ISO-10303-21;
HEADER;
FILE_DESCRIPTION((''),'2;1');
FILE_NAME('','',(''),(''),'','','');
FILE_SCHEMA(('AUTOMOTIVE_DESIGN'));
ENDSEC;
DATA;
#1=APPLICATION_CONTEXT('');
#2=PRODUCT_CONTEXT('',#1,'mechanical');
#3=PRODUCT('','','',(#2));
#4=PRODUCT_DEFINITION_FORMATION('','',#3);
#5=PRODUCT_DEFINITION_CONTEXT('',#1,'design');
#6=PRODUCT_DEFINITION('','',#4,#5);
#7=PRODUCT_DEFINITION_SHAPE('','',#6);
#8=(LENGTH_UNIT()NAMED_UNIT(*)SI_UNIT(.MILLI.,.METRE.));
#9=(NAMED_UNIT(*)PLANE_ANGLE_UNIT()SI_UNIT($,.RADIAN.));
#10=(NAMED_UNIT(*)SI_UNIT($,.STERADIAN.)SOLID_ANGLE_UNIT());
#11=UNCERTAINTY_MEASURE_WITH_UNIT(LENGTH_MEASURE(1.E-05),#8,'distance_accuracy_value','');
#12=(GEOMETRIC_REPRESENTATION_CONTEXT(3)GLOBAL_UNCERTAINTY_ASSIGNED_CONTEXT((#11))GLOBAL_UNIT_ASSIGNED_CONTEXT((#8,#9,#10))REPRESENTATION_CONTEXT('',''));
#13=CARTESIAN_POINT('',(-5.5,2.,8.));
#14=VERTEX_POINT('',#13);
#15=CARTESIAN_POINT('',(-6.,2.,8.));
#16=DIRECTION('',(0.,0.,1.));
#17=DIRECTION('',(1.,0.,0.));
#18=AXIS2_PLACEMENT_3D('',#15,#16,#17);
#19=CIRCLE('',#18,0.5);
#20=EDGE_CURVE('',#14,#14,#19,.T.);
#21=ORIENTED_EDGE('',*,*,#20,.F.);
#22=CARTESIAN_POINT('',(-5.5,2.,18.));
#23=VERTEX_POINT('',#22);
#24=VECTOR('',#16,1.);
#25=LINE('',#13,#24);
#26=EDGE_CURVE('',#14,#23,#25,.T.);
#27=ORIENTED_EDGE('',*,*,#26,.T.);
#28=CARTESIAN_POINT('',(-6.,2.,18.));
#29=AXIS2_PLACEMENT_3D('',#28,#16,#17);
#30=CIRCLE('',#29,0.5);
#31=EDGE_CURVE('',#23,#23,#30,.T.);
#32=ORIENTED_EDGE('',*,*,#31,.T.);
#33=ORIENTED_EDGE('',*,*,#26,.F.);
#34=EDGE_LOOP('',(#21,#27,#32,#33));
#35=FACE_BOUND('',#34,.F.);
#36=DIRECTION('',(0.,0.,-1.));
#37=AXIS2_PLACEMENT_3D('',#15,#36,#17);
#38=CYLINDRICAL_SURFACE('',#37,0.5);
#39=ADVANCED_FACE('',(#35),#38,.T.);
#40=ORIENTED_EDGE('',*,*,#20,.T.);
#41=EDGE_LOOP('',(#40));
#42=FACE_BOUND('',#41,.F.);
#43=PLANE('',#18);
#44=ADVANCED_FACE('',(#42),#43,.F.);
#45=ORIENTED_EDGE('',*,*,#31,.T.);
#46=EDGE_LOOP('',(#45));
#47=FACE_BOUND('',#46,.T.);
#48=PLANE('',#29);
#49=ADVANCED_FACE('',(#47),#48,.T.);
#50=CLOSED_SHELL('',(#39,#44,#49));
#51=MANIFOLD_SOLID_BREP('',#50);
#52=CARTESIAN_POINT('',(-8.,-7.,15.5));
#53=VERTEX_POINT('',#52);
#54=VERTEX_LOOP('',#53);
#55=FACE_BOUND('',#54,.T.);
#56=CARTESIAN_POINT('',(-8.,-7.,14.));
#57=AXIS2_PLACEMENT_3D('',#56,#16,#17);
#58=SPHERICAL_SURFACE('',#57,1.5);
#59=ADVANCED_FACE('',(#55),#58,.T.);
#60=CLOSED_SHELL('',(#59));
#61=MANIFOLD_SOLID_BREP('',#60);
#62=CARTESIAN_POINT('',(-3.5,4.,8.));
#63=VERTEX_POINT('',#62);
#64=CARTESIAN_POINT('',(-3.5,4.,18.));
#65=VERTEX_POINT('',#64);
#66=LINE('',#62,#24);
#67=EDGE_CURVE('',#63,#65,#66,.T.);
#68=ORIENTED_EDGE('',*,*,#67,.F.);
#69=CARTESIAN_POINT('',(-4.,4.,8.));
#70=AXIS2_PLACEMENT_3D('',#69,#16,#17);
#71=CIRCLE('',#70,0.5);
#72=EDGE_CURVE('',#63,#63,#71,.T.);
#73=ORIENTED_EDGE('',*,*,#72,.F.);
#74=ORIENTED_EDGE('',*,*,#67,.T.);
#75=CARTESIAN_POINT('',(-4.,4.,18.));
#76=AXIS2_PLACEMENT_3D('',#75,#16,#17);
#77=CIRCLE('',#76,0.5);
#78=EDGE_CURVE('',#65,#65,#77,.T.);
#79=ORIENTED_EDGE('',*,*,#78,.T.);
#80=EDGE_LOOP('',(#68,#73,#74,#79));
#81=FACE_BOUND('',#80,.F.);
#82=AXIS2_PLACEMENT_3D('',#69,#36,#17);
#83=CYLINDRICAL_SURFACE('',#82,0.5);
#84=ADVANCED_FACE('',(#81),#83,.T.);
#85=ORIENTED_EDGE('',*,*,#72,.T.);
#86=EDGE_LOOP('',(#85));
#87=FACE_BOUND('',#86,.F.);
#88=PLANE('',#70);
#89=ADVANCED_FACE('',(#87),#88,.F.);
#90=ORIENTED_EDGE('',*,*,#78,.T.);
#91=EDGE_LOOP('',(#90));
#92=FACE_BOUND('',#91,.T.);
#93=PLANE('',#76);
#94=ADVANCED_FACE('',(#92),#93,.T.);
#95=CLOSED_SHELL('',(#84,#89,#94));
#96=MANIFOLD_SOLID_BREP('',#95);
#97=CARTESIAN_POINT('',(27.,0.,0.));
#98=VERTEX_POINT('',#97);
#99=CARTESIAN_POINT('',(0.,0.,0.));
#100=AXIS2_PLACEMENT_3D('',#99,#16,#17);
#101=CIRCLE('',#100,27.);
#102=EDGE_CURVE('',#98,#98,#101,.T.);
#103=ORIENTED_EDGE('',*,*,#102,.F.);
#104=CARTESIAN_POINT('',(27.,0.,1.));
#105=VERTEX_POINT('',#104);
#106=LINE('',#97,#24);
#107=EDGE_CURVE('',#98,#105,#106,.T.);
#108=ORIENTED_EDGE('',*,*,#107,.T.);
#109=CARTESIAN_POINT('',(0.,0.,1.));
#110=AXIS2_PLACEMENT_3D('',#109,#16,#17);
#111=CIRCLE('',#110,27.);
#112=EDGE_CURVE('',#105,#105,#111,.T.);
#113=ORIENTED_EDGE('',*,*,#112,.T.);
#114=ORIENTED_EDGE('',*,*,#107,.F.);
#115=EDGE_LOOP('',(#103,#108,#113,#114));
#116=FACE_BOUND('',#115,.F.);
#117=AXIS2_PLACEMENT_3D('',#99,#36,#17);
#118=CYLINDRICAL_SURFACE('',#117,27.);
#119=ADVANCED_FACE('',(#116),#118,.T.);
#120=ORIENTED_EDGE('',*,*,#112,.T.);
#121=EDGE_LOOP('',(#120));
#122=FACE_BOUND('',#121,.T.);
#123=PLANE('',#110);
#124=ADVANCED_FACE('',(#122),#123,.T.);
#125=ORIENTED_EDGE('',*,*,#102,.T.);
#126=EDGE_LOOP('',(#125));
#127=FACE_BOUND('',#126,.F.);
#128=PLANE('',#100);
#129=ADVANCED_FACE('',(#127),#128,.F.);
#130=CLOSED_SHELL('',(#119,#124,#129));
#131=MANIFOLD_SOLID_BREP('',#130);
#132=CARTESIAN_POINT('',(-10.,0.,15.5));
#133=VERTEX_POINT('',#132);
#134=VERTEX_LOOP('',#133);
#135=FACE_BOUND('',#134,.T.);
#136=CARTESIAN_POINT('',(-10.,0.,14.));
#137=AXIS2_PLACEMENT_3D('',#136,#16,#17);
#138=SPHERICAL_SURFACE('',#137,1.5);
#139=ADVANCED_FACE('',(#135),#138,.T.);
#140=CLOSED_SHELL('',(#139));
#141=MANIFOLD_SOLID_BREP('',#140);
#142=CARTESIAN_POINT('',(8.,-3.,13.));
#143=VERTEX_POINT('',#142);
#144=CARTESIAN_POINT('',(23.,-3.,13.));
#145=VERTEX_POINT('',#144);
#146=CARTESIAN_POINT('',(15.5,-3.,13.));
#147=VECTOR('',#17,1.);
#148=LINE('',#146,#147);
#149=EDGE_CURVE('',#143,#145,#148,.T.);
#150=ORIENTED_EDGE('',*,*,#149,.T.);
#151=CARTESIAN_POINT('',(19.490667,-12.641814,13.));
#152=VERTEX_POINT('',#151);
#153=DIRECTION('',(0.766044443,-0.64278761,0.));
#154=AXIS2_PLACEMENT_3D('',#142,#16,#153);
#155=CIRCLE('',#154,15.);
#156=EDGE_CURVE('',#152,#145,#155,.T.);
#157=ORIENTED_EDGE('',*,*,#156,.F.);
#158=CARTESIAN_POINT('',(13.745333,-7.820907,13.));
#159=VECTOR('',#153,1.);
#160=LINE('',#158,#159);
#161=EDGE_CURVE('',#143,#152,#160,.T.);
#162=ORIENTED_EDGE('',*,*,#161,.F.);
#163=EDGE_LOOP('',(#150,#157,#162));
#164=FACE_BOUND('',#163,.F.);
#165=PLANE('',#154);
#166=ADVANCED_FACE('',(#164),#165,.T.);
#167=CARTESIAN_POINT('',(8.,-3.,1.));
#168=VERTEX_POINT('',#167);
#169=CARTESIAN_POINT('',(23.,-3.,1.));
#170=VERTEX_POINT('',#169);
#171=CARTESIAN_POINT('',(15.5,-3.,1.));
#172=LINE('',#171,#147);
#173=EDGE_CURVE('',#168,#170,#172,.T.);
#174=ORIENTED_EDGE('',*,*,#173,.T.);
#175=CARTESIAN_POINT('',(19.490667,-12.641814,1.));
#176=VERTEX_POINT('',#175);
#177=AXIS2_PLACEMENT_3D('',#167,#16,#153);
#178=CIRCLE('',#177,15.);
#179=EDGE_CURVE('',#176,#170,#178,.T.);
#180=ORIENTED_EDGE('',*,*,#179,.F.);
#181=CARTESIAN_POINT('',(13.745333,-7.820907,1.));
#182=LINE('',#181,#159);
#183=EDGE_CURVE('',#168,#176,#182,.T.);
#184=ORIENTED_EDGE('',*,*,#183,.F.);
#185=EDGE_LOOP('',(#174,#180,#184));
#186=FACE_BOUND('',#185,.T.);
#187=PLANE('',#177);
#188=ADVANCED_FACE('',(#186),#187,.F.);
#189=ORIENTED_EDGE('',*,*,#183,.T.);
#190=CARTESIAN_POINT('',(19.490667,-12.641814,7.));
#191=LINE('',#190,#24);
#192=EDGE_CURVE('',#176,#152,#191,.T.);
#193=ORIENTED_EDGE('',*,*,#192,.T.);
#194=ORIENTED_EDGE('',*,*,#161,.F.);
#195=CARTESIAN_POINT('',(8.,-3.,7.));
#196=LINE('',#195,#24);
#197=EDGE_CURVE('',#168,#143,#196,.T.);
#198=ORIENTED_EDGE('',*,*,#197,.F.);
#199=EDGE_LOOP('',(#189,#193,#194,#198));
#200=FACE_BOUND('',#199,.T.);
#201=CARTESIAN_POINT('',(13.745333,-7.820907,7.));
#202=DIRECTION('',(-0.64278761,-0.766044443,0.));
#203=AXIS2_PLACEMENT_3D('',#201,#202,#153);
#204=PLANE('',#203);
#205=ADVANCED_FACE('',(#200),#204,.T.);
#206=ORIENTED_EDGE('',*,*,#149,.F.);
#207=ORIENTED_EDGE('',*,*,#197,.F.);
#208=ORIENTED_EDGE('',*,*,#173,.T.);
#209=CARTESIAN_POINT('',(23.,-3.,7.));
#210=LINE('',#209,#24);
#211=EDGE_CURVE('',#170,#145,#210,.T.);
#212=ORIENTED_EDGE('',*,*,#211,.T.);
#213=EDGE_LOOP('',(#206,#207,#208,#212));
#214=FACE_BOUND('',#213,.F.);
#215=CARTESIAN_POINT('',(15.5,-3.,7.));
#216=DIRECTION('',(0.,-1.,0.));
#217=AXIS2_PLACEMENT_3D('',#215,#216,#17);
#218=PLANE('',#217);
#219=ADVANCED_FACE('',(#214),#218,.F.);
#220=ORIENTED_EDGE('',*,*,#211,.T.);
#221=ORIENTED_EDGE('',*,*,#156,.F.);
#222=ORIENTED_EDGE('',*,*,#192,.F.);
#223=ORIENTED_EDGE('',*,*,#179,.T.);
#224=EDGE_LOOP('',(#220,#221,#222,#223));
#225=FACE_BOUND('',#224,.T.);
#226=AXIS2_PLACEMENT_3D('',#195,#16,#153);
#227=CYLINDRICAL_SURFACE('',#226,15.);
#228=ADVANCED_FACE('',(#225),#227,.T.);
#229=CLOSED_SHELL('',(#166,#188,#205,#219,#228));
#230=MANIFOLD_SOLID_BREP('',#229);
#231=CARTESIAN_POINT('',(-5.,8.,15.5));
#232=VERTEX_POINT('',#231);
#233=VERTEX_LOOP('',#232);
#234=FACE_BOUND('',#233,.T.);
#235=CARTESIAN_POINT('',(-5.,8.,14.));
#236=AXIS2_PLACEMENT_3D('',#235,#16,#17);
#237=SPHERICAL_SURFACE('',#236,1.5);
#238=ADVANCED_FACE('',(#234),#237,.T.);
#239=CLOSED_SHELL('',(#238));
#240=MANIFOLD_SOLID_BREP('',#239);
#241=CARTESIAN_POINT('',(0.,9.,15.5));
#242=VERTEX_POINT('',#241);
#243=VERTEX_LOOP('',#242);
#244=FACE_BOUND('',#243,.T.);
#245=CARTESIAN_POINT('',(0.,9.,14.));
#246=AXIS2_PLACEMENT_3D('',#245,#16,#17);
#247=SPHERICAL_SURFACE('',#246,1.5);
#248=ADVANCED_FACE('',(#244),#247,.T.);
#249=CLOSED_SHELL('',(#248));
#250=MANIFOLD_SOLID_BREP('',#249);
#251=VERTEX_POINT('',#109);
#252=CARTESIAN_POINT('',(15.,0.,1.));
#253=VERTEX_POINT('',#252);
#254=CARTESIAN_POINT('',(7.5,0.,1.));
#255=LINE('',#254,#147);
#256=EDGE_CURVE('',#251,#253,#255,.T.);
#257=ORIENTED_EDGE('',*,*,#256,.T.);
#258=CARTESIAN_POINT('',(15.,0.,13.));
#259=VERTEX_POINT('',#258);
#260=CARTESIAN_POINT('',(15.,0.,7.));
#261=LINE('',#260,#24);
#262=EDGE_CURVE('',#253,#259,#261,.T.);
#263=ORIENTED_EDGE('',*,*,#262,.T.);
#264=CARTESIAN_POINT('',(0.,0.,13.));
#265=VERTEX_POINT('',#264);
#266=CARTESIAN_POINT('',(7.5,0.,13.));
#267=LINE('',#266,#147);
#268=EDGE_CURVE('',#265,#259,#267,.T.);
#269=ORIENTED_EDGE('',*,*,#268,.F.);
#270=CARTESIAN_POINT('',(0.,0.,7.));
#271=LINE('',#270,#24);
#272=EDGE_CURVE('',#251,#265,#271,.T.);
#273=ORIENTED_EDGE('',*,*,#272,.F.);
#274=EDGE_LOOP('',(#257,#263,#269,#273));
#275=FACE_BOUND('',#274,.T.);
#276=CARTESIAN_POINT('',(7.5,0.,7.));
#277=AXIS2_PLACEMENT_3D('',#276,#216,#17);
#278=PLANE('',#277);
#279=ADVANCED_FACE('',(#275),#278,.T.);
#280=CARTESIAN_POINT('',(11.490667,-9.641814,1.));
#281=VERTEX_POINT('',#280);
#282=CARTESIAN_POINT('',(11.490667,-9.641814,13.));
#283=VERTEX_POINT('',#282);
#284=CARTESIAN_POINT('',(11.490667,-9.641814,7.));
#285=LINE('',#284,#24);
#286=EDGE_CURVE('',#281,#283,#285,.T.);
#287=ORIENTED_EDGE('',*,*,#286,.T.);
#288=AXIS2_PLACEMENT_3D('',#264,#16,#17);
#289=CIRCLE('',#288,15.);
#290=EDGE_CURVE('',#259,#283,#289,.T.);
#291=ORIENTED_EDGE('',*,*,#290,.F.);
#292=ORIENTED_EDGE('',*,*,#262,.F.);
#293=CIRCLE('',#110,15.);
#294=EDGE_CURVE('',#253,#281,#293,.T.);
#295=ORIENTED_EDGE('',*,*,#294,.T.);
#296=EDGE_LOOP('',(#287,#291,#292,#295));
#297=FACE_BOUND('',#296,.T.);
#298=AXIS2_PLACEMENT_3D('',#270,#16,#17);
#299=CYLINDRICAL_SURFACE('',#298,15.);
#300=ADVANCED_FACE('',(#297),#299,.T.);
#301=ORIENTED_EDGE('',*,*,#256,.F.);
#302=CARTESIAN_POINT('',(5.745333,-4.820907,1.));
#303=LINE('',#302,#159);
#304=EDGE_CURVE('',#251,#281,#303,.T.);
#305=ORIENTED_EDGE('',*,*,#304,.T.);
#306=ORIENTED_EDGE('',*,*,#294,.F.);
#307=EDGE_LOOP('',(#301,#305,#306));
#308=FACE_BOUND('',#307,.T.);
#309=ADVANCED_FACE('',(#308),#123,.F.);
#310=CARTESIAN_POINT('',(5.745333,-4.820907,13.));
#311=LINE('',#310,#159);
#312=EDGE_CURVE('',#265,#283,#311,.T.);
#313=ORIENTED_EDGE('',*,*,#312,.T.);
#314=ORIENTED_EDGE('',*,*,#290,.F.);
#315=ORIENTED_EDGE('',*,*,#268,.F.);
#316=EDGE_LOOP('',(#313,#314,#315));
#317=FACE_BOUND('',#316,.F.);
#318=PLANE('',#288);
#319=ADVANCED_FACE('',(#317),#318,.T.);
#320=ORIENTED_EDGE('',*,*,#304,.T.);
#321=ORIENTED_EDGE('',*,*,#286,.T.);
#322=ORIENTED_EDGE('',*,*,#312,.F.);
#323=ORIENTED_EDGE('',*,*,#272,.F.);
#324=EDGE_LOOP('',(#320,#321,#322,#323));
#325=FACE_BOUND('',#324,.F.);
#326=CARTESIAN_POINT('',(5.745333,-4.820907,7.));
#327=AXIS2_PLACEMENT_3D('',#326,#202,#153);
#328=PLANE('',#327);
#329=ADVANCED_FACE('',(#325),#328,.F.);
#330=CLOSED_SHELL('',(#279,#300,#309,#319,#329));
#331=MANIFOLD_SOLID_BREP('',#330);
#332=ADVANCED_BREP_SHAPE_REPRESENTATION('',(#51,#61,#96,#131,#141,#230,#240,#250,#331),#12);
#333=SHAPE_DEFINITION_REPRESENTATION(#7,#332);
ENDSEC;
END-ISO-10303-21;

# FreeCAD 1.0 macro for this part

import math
import FreeCAD as App
import Part
import Sketcher
from FreeCAD import Vector
Q = App.Units.Quantity


def add_polygon(sketch, points):
    """Adds a closed chain of lines whose ends are joined by coincident constraints."""
    first, n = sketch.GeometryCount, len(points)
    for a, b in zip(points, points[1:] + points[:1]):
        sketch.addGeometry(Part.LineSegment(App.Vector(*a, 0), App.Vector(*b, 0)), False)
    for i in range(n):
        sketch.addConstraint(Sketcher.Constraint("Coincident", first + i, 2, first + (i + 1) % n, 1))

doc = App.newDocument("Part")
body = doc.addObject("PartDesign::Body", "Body")

# Sketch on XZ plane
sketch1 = body.newObject("Sketcher::SketchObject", "Sketch")
sketch1.AttachmentSupport = (doc.getObject("XZ_Plane"), [""])
sketch1.MapMode = "FlatFace"
add_polygon(sketch1, [(0, 13), (0, 1), (15, 1), (15, 13)])  # lines 0-3
sketch1.addConstraint([
    Sketcher.Constraint("Vertical", 0),
    Sketcher.Constraint("Horizontal", 1),
    Sketcher.Constraint("Vertical", 2),
    Sketcher.Constraint("Horizontal", 3),
    Sketcher.Constraint("PointOnObject", 0, 2, -2),
    Sketcher.Constraint("DistanceX", 1, 1, 1, 2, Q("15 mm")),
    Sketcher.Constraint("DistanceY", 0, 2, 0, 1, Q("12 mm")),
    Sketcher.Constraint("DistanceY", -1, 1, 0, 2, Q("1 mm")),
])
revolution = body.newObject("PartDesign::Revolution", "Revolution")
revolution.Profile = sketch1
revolution.ReferenceAxis = (sketch1, ["V_Axis"])
revolution.Angle = 320
body2 = doc.addObject("PartDesign::Body", "Body001")

# Sketch on XZ plane
sketch2 = body2.newObject("Sketcher::SketchObject", "Sketch001")
sketch2.AttachmentSupport = (doc.getObject("XZ_Plane001"), [""])
sketch2.MapMode = "FlatFace"
add_polygon(sketch2, [(0, 12), (0, 0), (15, 0), (15, 12)])  # lines 0-3
sketch2.addConstraint([
    Sketcher.Constraint("Vertical", 0),
    Sketcher.Constraint("Horizontal", 1),
    Sketcher.Constraint("Vertical", 2),
    Sketcher.Constraint("Horizontal", 3),
    Sketcher.Constraint("Coincident", 0, 2, -1, 1),
    Sketcher.Constraint("DistanceX", 1, 1, 1, 2, Q("15 mm")),
    Sketcher.Constraint("DistanceY", 0, 2, 0, 1, Q("12 mm")),
])
revolution2 = body2.newObject("PartDesign::Revolution", "Revolution001")
revolution2.Profile = sketch2
revolution2.ReferenceAxis = (sketch2, ["V_Axis"])
revolution2.Angle = 40
body3 = doc.addObject("PartDesign::Body", "Body002")
doc.recompute()

body2.Placement = App.Placement(Vector(8, -3, 1), App.Rotation(Vector(0, 0, 1), 320))
boolean = body3.newObject("PartDesign::Boolean", "Boolean")
boolean.Type = "Fuse"
boolean.addObjects([body2])
body4 = doc.addObject("PartDesign::Body", "Body003")

# Sketch on XY plane
sketch3 = body4.newObject("Sketcher::SketchObject", "Sketch002")
sketch3.AttachmentSupport = (doc.getObject("XY_Plane003"), [""])
sketch3.MapMode = "FlatFace"
sketch3.addGeometry(Part.Circle(Vector(0, 0, 0), Vector(0, 0, 1), 27), False)
sketch3.addConstraint([
    Sketcher.Constraint("Coincident", 0, 3, -1, 1),
    Sketcher.Constraint("Diameter", 0, Q("54 mm")),
])
pad1 = body4.newObject("PartDesign::Pad", "Pad")
pad1.Profile = sketch3
pad1.Length = 1
body5 = doc.addObject("PartDesign::Body", "Body004")

# Sketch on XZ plane
sketch4 = body5.newObject("Sketcher::SketchObject", "Sketch003")
sketch4.AttachmentSupport = (doc.getObject("XZ_Plane004"), [""])
sketch4.MapMode = "FlatFace"
sketch4.addGeometry([
    Part.ArcOfCircle(Part.Circle(Vector(-10, 14, 0), Vector(0, 0, 1), 1.5), math.radians(-90), math.radians(90)),
    Part.LineSegment(Vector(-10, 15.5, 0), Vector(-10, 12.5, 0)),
], False)
sketch4.addGeometry(Part.LineSegment(Vector(-10, 12.5, 0), Vector(-10, 15.5, 0)), True)  # axis
sketch4.addConstraint([
    Sketcher.Constraint("Coincident", 0, 1, 1, 2),
    Sketcher.Constraint("Coincident", 1, 1, 0, 2),
    Sketcher.Constraint("Vertical", 1),
    Sketcher.Constraint("Vertical", 2),
    Sketcher.Constraint("Coincident", 2, 1, 0, 1),
    Sketcher.Constraint("Equal", 1, 2),
    Sketcher.Constraint("Radius", 0, Q("1.5 mm")),
    Sketcher.Constraint("DistanceX", 0, 3, -1, 1, Q("10 mm")),
    Sketcher.Constraint("DistanceY", -1, 1, 0, 3, Q("14 mm")),
    Sketcher.Constraint("DistanceX", 0, 1, -1, 1, Q("10 mm")),
])
revolution3 = body5.newObject("PartDesign::Revolution", "Revolution002")
revolution3.Profile = sketch4
revolution3.ReferenceAxis = (sketch4, ["Axis0"])
revolution3.Angle = 360
body6 = doc.addObject("PartDesign::Body", "Body005")

# Sketch on XZ plane
sketch5 = body6.newObject("Sketcher::SketchObject", "Sketch004")
sketch5.AttachmentSupport = (doc.getObject("XZ_Plane005"), [""])
sketch5.MapMode = "FlatFace"
sketch5.AttachmentOffset = App.Placement(Vector(0, 0, -9), App.Rotation())
sketch5.addGeometry([
    Part.ArcOfCircle(Part.Circle(Vector(0, 14, 0), Vector(0, 0, 1), 1.5), math.radians(-90), math.radians(90)),
    Part.LineSegment(Vector(0, 15.5, 0), Vector(0, 12.5, 0)),
], False)
sketch5.addConstraint([
    Sketcher.Constraint("Coincident", 0, 1, 1, 2),
    Sketcher.Constraint("Coincident", 1, 1, 0, 2),
    Sketcher.Constraint("Vertical", 1),
    Sketcher.Constraint("PointOnObject", 0, 3, -2),
    Sketcher.Constraint("PointOnObject", 0, 1, -2),
    Sketcher.Constraint("Radius", 0, Q("1.5 mm")),
    Sketcher.Constraint("DistanceY", -1, 1, 0, 3, Q("14 mm")),
])
revolution4 = body6.newObject("PartDesign::Revolution", "Revolution003")
revolution4.Profile = sketch5
revolution4.ReferenceAxis = (sketch5, ["V_Axis"])
revolution4.Angle = 360
body7 = doc.addObject("PartDesign::Body", "Body006")

# Sketch on XZ plane
sketch6 = body7.newObject("Sketcher::SketchObject", "Sketch005")
sketch6.AttachmentSupport = (doc.getObject("XZ_Plane006"), [""])
sketch6.MapMode = "FlatFace"
sketch6.AttachmentOffset = App.Placement(Vector(0, 0, -8), App.Rotation())
sketch6.addGeometry([
    Part.ArcOfCircle(Part.Circle(Vector(-5, 14, 0), Vector(0, 0, 1), 1.5), math.radians(-90), math.radians(90)),
    Part.LineSegment(Vector(-5, 15.5, 0), Vector(-5, 12.5, 0)),
], False)
sketch6.addGeometry(Part.LineSegment(Vector(-5, 12.5, 0), Vector(-5, 15.5, 0)), True)  # axis
sketch6.addConstraint([
    Sketcher.Constraint("Coincident", 0, 1, 1, 2),
    Sketcher.Constraint("Coincident", 1, 1, 0, 2),
    Sketcher.Constraint("Vertical", 1),
    Sketcher.Constraint("Vertical", 2),
    Sketcher.Constraint("Coincident", 2, 1, 0, 1),
    Sketcher.Constraint("Equal", 1, 2),
    Sketcher.Constraint("Radius", 0, Q("1.5 mm")),
    Sketcher.Constraint("DistanceX", 0, 3, -1, 1, Q("5 mm")),
    Sketcher.Constraint("DistanceY", -1, 1, 0, 3, Q("14 mm")),
    Sketcher.Constraint("DistanceX", 0, 1, -1, 1, Q("5 mm")),
])
revolution5 = body7.newObject("PartDesign::Revolution", "Revolution004")
revolution5.Profile = sketch6
revolution5.ReferenceAxis = (sketch6, ["Axis0"])
revolution5.Angle = 360
body8 = doc.addObject("PartDesign::Body", "Body007")

# Sketch on XZ plane
sketch7 = body8.newObject("Sketcher::SketchObject", "Sketch006")
sketch7.AttachmentSupport = (doc.getObject("XZ_Plane007"), [""])
sketch7.MapMode = "FlatFace"
sketch7.AttachmentOffset = App.Placement(Vector(0, 0, 7), App.Rotation())
sketch7.addGeometry([
    Part.ArcOfCircle(Part.Circle(Vector(-8, 14, 0), Vector(0, 0, 1), 1.5), math.radians(-90), math.radians(90)),
    Part.LineSegment(Vector(-8, 15.5, 0), Vector(-8, 12.5, 0)),
], False)
sketch7.addGeometry(Part.LineSegment(Vector(-8, 12.5, 0), Vector(-8, 15.5, 0)), True)  # axis
sketch7.addConstraint([
    Sketcher.Constraint("Coincident", 0, 1, 1, 2),
    Sketcher.Constraint("Coincident", 1, 1, 0, 2),
    Sketcher.Constraint("Vertical", 1),
    Sketcher.Constraint("Vertical", 2),
    Sketcher.Constraint("Coincident", 2, 1, 0, 1),
    Sketcher.Constraint("Equal", 1, 2),
    Sketcher.Constraint("Radius", 0, Q("1.5 mm")),
    Sketcher.Constraint("DistanceX", 0, 3, -1, 1, Q("8 mm")),
    Sketcher.Constraint("DistanceY", -1, 1, 0, 3, Q("14 mm")),
    Sketcher.Constraint("DistanceX", 0, 1, -1, 1, Q("8 mm")),
])
revolution6 = body8.newObject("PartDesign::Revolution", "Revolution005")
revolution6.Profile = sketch7
revolution6.ReferenceAxis = (sketch7, ["Axis0"])
revolution6.Angle = 360
body9 = doc.addObject("PartDesign::Body", "Body008")

# Sketch on XY plane
sketch8 = body9.newObject("Sketcher::SketchObject", "Sketch007")
sketch8.AttachmentSupport = (doc.getObject("XY_Plane008"), [""])
sketch8.MapMode = "FlatFace"
sketch8.AttachmentOffset = App.Placement(Vector(0, 0, 8), App.Rotation())
sketch8.addGeometry(Part.Circle(Vector(-4, 4, 0), Vector(0, 0, 1), 0.5), False)
sketch8.addConstraint([
    Sketcher.Constraint("Diameter", 0, Q("1 mm")),
    Sketcher.Constraint("DistanceX", 0, 3, -1, 1, Q("4 mm")),
    Sketcher.Constraint("DistanceY", -1, 1, 0, 3, Q("4 mm")),
])
pad2 = body9.newObject("PartDesign::Pad", "Pad001")
pad2.Profile = sketch8
pad2.Length = 10
body10 = doc.addObject("PartDesign::Body", "Body009")

# Sketch on XY plane
sketch9 = body10.newObject("Sketcher::SketchObject", "Sketch008")
sketch9.AttachmentSupport = (doc.getObject("XY_Plane009"), [""])
sketch9.MapMode = "FlatFace"
sketch9.AttachmentOffset = App.Placement(Vector(0, 0, 8), App.Rotation())
sketch9.addGeometry(Part.Circle(Vector(-6, 2, 0), Vector(0, 0, 1), 0.5), False)
sketch9.addConstraint([
    Sketcher.Constraint("Diameter", 0, Q("1 mm")),
    Sketcher.Constraint("DistanceX", 0, 3, -1, 1, Q("6 mm")),
    Sketcher.Constraint("DistanceY", -1, 1, 0, 3, Q("2 mm")),
])
pad3 = body10.newObject("PartDesign::Pad", "Pad002")
pad3.Profile = sketch9
pad3.Length = 10

doc.recompute()
